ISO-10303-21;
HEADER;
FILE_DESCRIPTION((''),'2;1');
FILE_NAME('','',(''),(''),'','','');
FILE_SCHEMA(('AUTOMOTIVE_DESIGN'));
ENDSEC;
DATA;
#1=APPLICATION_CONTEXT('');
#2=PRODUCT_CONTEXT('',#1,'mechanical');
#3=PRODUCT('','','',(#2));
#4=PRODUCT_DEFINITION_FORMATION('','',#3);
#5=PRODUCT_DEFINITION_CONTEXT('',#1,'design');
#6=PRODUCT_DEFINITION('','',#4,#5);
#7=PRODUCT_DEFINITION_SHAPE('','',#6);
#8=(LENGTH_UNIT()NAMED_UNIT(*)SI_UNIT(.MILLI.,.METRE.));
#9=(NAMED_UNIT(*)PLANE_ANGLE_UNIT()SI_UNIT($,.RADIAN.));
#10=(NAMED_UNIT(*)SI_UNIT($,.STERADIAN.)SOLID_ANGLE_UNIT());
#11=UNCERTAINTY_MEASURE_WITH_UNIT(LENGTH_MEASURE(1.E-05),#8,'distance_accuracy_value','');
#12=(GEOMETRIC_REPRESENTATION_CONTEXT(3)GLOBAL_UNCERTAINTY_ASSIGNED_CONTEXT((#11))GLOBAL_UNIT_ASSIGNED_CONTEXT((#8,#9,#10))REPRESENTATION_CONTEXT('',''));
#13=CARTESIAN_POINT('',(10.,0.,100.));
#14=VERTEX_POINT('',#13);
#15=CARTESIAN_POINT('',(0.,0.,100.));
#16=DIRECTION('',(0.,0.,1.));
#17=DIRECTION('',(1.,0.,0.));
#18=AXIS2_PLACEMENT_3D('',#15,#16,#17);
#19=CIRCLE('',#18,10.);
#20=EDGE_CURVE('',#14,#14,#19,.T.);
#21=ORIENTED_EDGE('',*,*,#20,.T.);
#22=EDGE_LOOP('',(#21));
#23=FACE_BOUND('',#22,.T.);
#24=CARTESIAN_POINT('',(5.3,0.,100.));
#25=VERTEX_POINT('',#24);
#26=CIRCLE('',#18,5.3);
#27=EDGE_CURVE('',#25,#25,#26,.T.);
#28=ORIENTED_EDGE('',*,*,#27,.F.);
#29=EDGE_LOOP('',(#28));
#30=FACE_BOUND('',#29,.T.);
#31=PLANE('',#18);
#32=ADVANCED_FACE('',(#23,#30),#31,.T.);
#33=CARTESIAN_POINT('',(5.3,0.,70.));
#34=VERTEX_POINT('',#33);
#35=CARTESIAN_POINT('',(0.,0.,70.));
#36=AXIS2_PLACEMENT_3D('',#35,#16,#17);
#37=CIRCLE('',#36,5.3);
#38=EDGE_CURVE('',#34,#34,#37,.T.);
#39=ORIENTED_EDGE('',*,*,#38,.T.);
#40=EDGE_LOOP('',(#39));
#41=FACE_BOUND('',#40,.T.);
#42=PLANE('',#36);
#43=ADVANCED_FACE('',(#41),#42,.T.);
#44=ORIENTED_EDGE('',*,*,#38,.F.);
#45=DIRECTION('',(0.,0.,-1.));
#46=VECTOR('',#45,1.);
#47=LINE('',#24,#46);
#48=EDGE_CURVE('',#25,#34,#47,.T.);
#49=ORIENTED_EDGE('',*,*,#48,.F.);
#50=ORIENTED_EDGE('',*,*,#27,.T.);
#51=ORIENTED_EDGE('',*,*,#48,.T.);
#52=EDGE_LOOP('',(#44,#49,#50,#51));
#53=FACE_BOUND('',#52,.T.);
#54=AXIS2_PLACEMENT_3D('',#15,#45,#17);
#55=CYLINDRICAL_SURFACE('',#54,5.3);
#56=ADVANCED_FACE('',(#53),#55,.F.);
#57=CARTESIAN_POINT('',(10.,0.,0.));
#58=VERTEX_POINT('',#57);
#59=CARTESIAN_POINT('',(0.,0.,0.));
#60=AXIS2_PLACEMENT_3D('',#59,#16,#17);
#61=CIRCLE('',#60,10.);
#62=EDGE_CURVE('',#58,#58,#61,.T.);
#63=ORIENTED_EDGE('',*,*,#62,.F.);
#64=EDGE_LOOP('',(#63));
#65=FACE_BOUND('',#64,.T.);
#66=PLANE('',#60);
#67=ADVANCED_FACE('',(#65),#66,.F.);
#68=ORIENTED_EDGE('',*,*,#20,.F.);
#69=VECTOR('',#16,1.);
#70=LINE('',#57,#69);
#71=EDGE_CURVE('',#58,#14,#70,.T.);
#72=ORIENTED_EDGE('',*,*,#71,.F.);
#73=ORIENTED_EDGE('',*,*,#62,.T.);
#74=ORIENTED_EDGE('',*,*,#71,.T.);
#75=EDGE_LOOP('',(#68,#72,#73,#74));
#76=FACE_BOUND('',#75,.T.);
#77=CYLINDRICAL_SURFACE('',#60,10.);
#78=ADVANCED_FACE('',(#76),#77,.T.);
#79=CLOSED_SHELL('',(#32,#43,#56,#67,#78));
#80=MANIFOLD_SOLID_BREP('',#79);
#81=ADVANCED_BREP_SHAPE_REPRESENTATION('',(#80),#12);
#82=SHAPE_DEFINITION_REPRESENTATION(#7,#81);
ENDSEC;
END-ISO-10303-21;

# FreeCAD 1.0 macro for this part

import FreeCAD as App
import Part
import Sketcher

V = App.Vector

doc = App.newDocument("Part")
body = doc.addObject("PartDesign::Body", "Body")

# Sketch on XZ plane
sketch1 = body.newObject("Sketcher::SketchObject", "Sketch")
sketch1.AttachmentSupport = (doc.getObject("XZ_Plane"), [""])
sketch1.MapMode = "FlatFace"
sketch1.addGeometry([
    Part.LineSegment(V(0, 70, 0), V(0, 0, 0)),  # 0
    Part.LineSegment(V(0, 0, 0), V(10, 0, 0)),  # 1
    Part.LineSegment(V(10, 0, 0), V(10, 100, 0)),  # 2
    Part.LineSegment(V(10, 100, 0), V(5.3, 100, 0)),  # 3
    Part.LineSegment(V(5.3, 100, 0), V(5.3, 70, 0)),  # 4
    Part.LineSegment(V(5.3, 70, 0), V(0, 70, 0)),  # 5
], False)
sketch1.addConstraint([
    Sketcher.Constraint("Coincident", 0, 2, 1, 1),
    Sketcher.Constraint("Coincident", 1, 2, 2, 1),
    Sketcher.Constraint("Coincident", 2, 2, 3, 1),
    Sketcher.Constraint("Coincident", 3, 2, 4, 1),
    Sketcher.Constraint("Coincident", 4, 2, 5, 1),
    Sketcher.Constraint("Coincident", 5, 2, 0, 1),
    Sketcher.Constraint("Vertical", 0),
    Sketcher.Constraint("Horizontal", 1),
    Sketcher.Constraint("Vertical", 2),
    Sketcher.Constraint("Horizontal", 3),
    Sketcher.Constraint("Vertical", 4),
    Sketcher.Constraint("Horizontal", 5),
    Sketcher.Constraint("Coincident", 0, 2, -1, 1),
    Sketcher.Constraint("DistanceX", 1, 1, 1, 2, 10.0),
    Sketcher.Constraint("DistanceY", 0, 2, 0, 1, 70.0),
    Sketcher.Constraint("DistanceY", 2, 1, 2, 2, 100.0),
    Sketcher.Constraint("DistanceX", 3, 2, 3, 1, 4.7),
])
revolution = body.newObject("PartDesign::Revolution", "Revolution")
revolution.Profile = sketch1
revolution.ReferenceAxis = (sketch1, ["V_Axis"])
revolution.Angle = 360

doc.recompute()
